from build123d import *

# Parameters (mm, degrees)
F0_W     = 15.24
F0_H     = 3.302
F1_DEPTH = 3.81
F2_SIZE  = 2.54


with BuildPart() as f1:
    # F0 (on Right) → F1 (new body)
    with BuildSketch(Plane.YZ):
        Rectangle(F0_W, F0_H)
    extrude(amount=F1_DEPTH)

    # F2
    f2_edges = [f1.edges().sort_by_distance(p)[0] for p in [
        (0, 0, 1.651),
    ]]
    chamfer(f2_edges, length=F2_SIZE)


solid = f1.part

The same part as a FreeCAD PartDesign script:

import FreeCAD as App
import Part
import Sketcher

V = App.Vector
Q = App.Units.Quantity


def edges_at(feature, points):
    """Names of the edges that pass closest to the given points."""
    edges = feature.Shape.Edges
    near = lambda p: min(range(len(edges)), key=lambda i: edges[i].distToShape(Part.Vertex(*p))[0])
    return sorted({f"Edge{near(p) + 1}" for p in points})


def add_polygon(sketch, points):
    """Adds a closed chain of lines whose ends are joined by coincident constraints."""
    first, n = sketch.GeometryCount, len(points)
    for a, b in zip(points, points[1:] + points[:1]):
        sketch.addGeometry(Part.LineSegment(App.Vector(*a, 0), App.Vector(*b, 0)), False)
    for i in range(n):
        sketch.addConstraint(Sketcher.Constraint("Coincident", first + i, 2, first + (i + 1) % n, 1))

doc = App.newDocument("Part")
body = doc.addObject("PartDesign::Body", "Body")

sketch1 = body.newObject("Sketcher::SketchObject", "Sketch")
sketch1.AttachmentSupport = (doc.getObject("YZ_Plane"), [""])
sketch1.MapMode = "FlatFace"
add_polygon(sketch1, [(-7.6, 1.7), (-7.6, -1.7), (7.6, -1.7), (7.6, 1.7)])
sketch1.addConstraint([
    Sketcher.Constraint("Vertical", 0),
    Sketcher.Constraint("Horizontal", 1),
    Sketcher.Constraint("Vertical", 2),
    Sketcher.Constraint("Horizontal", 3),
    Sketcher.Constraint("Symmetric", 0, 2, 2, 2, -1, 1),
    Sketcher.Constraint("DistanceX", 1, 1, 1, 2, Q("0.6 in")),
    Sketcher.Constraint("DistanceY", 0, 2, 0, 1, Q("0.13 in")),
])
pad1 = body.newObject("PartDesign::Pad", "Pad")
pad1.Profile = sketch1
pad1.Length = Q("0.15 in")
doc.recompute()

chamfer = body.newObject("PartDesign::Chamfer", "Chamfer")
chamfer.Base = (pad1, edges_at(pad1, [(0, 0, 1.651)]))
chamfer.Size = Q("0.1 in")

doc.recompute()
